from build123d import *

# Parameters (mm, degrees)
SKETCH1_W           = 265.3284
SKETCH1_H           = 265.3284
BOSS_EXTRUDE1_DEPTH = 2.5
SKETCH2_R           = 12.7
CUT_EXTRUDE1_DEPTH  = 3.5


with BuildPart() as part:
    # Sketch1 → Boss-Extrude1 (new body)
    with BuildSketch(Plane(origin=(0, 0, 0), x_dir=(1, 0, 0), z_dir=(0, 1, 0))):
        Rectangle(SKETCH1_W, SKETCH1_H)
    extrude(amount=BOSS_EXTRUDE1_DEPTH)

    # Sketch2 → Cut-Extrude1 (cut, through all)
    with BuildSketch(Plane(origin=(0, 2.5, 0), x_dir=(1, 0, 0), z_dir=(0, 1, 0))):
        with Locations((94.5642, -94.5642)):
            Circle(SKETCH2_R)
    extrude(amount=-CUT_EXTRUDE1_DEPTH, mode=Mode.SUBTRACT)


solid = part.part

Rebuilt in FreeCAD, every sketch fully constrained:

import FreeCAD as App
import Part
import Sketcher
from FreeCAD import Vector

doc = App.newDocument("Part")
body = doc.addObject("PartDesign::Body", "Body")

sketch1 = doc.addObject("Sketcher::SketchObject", "Sketch")
body.addObject(sketch1)
sketch1.AttachmentSupport = (doc.XZ_Plane, [""])
sketch1.MapMode = "FlatFace"
sketch1.addGeometry(Part.LineSegment(Vector(-133, -133, 0), Vector(-133, 133, 0)), False)
sketch1.addGeometry(Part.LineSegment(Vector(-133, 133, 0), Vector(133, 133, 0)), False)
sketch1.addGeometry(Part.LineSegment(Vector(133, 133, 0), Vector(133, -133, 0)), False)
sketch1.addGeometry(Part.LineSegment(Vector(133, -133, 0), Vector(-133, -133, 0)), False)
sketch1.addConstraint(Sketcher.Constraint("Coincident", 0, 2, 1, 1))
sketch1.addConstraint(Sketcher.Constraint("Coincident", 1, 2, 2, 1))
sketch1.addConstraint(Sketcher.Constraint("Coincident", 2, 2, 3, 1))
sketch1.addConstraint(Sketcher.Constraint("Coincident", 3, 2, 0, 1))
sketch1.addConstraint(Sketcher.Constraint("Vertical", 0))
sketch1.addConstraint(Sketcher.Constraint("Horizontal", 1))
sketch1.addConstraint(Sketcher.Constraint("Vertical", 2))
sketch1.addConstraint(Sketcher.Constraint("Horizontal", 3))
sketch1.addConstraint(Sketcher.Constraint("Symmetric", 0, 2, 2, 2, -1, 1))
sketch1.addConstraint(Sketcher.Constraint("Equal", 3, 0))
sketch1.addConstraint(Sketcher.Constraint("DistanceX", 1, 1, 1, 2, 265.3284))
pad1 = doc.addObject("PartDesign::Pad", "Pad")
body.addObject(pad1)
pad1.Profile = sketch1
pad1.Length = 2.5
pad1.Reversed = True

sketch2 = doc.addObject("Sketcher::SketchObject", "Sketch001")
body.addObject(sketch2)
sketch2.AttachmentSupport = (doc.XZ_Plane, [""])
sketch2.MapMode = "FlatFace"
sketch2.AttachmentOffset = App.Placement(Vector(0, 0, -2.5), App.Rotation())
sketch2.addGeometry(Part.Circle(Vector(95, 95, 0), Vector(0, 0, 1), 13), False)
sketch2.addConstraint(Sketcher.Constraint("Diameter", 0, 25.4))
sketch2.addConstraint(Sketcher.Constraint("DistanceX", -1, 1, 0, 3, 94.5642))
sketch2.addConstraint(Sketcher.Constraint("DistanceY", -1, 1, 0, 3, 94.5642))
pocket1 = doc.addObject("PartDesign::Pocket", "Pocket")
body.addObject(pocket1)
pocket1.Profile = sketch2
pocket1.Type = "ThroughAll"
pocket1.Reversed = True

doc.recompute()
